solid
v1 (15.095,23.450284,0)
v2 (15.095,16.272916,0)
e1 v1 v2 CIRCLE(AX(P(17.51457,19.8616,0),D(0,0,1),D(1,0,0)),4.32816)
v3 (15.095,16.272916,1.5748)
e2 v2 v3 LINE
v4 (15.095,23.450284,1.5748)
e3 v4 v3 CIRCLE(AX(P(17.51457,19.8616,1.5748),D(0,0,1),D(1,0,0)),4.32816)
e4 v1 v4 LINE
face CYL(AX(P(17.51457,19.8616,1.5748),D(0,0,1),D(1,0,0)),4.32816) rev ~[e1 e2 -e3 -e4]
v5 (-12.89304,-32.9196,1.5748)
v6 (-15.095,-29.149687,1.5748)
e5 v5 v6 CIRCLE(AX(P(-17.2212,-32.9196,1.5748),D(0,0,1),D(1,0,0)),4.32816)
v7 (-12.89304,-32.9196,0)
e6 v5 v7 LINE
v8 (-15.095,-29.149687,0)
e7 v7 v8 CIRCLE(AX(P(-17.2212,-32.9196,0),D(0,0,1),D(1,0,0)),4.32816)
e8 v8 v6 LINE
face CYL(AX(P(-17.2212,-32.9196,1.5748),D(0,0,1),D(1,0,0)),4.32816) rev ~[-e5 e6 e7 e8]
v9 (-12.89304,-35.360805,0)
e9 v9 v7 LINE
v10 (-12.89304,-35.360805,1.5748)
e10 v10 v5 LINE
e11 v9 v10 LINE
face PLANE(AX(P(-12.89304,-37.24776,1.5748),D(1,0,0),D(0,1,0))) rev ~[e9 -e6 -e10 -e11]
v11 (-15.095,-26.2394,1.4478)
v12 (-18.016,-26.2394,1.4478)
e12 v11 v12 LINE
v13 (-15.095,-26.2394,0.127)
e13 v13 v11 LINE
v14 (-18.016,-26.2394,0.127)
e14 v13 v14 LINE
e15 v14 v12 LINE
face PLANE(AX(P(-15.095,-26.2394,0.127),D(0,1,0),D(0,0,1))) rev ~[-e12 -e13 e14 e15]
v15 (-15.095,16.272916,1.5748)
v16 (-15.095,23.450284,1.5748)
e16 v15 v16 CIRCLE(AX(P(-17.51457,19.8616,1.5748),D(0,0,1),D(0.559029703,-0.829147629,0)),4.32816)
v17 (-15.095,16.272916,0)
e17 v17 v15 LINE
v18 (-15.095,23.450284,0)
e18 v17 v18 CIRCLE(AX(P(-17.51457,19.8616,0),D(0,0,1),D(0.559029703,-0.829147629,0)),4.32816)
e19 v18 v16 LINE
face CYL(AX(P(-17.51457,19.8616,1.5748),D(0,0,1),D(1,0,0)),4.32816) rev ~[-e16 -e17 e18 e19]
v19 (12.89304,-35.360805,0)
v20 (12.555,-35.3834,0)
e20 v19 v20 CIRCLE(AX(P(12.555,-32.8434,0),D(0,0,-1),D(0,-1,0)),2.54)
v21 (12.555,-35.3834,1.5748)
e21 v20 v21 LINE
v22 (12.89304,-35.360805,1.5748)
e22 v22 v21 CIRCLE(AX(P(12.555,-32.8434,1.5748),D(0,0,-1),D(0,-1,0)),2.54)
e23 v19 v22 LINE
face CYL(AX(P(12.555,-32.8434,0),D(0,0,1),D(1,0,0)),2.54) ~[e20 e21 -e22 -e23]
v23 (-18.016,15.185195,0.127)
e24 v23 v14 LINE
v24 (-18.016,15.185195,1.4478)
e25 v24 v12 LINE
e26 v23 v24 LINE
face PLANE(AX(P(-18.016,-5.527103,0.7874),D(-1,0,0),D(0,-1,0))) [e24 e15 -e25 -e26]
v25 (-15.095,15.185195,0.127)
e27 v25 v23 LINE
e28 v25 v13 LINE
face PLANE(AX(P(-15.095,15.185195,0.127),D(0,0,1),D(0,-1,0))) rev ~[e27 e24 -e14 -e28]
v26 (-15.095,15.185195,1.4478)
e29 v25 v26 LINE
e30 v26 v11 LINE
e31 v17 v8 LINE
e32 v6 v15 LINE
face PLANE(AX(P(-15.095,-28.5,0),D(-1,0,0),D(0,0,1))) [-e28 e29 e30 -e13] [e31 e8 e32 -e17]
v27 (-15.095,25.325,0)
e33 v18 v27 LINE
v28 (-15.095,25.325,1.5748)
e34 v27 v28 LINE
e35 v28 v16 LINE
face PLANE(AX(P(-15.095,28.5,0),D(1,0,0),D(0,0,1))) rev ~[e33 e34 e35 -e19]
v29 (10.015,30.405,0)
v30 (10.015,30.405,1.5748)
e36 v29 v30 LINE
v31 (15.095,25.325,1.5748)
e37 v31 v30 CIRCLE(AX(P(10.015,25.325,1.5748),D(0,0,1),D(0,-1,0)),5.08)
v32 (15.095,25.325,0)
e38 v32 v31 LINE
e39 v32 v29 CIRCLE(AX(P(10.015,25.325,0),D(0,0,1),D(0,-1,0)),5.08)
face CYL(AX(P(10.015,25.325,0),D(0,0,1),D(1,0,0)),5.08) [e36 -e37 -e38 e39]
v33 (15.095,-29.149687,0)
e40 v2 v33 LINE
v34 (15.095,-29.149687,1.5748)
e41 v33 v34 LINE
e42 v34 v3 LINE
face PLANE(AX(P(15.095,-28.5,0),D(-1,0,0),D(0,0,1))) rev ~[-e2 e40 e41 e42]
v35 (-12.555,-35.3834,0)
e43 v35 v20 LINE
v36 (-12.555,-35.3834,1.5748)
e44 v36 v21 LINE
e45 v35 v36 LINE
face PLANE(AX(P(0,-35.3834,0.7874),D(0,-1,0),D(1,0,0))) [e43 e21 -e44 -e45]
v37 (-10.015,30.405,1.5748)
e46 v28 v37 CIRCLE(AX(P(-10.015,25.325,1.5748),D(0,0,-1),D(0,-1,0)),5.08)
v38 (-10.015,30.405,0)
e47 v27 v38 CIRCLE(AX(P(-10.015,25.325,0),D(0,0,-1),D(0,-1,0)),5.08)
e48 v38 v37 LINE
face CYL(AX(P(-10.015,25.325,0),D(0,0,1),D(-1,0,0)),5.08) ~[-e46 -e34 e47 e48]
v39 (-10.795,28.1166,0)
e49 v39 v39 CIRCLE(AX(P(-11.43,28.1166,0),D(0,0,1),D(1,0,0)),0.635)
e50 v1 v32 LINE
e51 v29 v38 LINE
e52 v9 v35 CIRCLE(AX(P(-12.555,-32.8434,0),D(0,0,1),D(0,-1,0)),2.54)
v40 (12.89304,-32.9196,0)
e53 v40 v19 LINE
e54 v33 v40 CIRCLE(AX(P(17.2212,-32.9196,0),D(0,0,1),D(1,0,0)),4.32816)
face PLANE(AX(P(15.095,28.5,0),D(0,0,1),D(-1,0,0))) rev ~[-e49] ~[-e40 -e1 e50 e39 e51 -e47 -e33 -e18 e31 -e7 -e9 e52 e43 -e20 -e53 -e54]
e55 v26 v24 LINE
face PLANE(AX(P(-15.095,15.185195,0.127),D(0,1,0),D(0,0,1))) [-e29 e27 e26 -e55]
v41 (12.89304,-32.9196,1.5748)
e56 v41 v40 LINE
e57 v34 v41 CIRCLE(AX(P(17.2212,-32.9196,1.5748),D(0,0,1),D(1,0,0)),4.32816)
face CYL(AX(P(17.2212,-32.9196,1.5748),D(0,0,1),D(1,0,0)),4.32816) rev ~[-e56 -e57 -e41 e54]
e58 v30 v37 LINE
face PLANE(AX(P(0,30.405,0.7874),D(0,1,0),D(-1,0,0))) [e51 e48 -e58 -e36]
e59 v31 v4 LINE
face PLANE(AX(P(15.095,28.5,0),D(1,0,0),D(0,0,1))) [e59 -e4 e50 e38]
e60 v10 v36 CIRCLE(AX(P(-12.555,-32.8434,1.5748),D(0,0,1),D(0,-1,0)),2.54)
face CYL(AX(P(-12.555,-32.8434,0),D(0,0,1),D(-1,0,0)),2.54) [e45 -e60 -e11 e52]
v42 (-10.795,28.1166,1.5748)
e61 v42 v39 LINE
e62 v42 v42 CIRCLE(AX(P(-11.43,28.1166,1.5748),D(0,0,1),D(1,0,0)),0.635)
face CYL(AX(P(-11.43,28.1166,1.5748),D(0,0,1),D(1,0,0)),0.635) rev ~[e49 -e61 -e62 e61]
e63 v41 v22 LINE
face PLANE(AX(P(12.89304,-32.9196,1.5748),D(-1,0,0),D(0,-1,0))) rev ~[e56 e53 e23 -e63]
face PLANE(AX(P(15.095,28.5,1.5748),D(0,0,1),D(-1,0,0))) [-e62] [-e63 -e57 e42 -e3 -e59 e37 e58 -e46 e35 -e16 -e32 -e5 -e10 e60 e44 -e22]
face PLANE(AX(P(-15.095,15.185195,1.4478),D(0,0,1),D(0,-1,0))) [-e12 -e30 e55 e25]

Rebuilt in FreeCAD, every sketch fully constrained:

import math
import FreeCAD as App
import Part
import Sketcher
from FreeCAD import Vector
Q = App.Units.Quantity


def edges_at(feature, points):
    """Names of the edges that pass closest to the given points."""
    edges = feature.Shape.Edges
    near = lambda p: min(range(len(edges)), key=lambda i: edges[i].distToShape(Part.Vertex(*p))[0])
    return sorted({f"Edge{near(p) + 1}" for p in points})


def add_polygon(sketch, points):
    """Adds a closed chain of lines whose ends are joined by coincident constraints."""
    first, n = sketch.GeometryCount, len(points)
    for a, b in zip(points, points[1:] + points[:1]):
        sketch.addGeometry(Part.LineSegment(App.Vector(*a, 0), App.Vector(*b, 0)), False)
    for i in range(n):
        sketch.addConstraint(Sketcher.Constraint("Coincident", first + i, 2, first + (i + 1) % n, 1))

doc = App.newDocument("Part")
body = doc.addObject("PartDesign::Body", "Body")

sketch1 = doc.addObject("Sketcher::SketchObject", "Sketch")
body.addObject(sketch1)
sketch1.AttachmentSupport = (doc.XY_Plane, [""])
sketch1.MapMode = "FlatFace"
add_polygon(sketch1, [(-15, 28), (-15, -28), (15, -28), (15, 28)])
sketch1.addConstraint(Sketcher.Constraint("Vertical", 0))
sketch1.addConstraint(Sketcher.Constraint("Horizontal", 1))
sketch1.addConstraint(Sketcher.Constraint("Vertical", 2))
sketch1.addConstraint(Sketcher.Constraint("Horizontal", 3))
sketch1.addConstraint(Sketcher.Constraint("Symmetric", 0, 2, 2, 2, -1, 1))
sketch1.addConstraint(Sketcher.Constraint("DistanceX", 1, 1, 1, 2, Q("30.19 mm")))
sketch1.addConstraint(Sketcher.Constraint("DistanceY", 0, 2, 0, 1, Q("57 mm")))
pad1 = doc.addObject("PartDesign::Pad", "Pad")
body.addObject(pad1)
pad1.Profile = sketch1
pad1.Length = Q("0.062 in")

sketch2 = doc.addObject("Sketcher::SketchObject", "Sketch001")
body.addObject(sketch2)
sketch2.AttachmentSupport = (doc.XZ_Plane, [""])
sketch2.MapMode = "FlatFace"
sketch2.AttachmentOffset = App.Placement(Vector(0, 0, 28.5), App.Rotation())
add_polygon(sketch2, [(-15.1, 1.6), (-15.1, 0), (15.1, 0), (15.1, 1.6)])
sketch2.addConstraint(Sketcher.Constraint("Vertical", 0))
sketch2.addConstraint(Sketcher.Constraint("Horizontal", 1))
sketch2.addConstraint(Sketcher.Constraint("Vertical", 2))
sketch2.addConstraint(Sketcher.Constraint("Horizontal", 3))
sketch2.addConstraint(Sketcher.Constraint("Symmetric", 0, 2, 1, 2, -1, 1))
sketch2.addConstraint(Sketcher.Constraint("DistanceY", 0, 2, 0, 1, Q("0.062 in")))
sketch2.addConstraint(Sketcher.Constraint("DistanceX", 1, 1, 1, 2, Q("30.19 mm")))
pad2 = doc.addObject("PartDesign::Pad", "Pad001")
body.addObject(pad2)
pad2.Profile = sketch2
pad2.Length = Q("0.271 in")
doc.recompute()

fillet = doc.addObject("PartDesign::Fillet", "Fillet")
body.addObject(fillet)
fillet.Base = (pad2, edges_at(pad2, [(15.095, -35.383, 0.787), (-15.095, -35.383, 0.787)]))
fillet.Radius = Q("0.1 in")

sketch3 = doc.addObject("Sketcher::SketchObject", "Sketch002")
body.addObject(sketch3)
sketch3.AttachmentSupport = (doc.XY_Plane, [""])
sketch3.MapMode = "FlatFace"
sketch3.AttachmentOffset = App.Placement(Vector(0, 0, 0.062 * 25.4), App.Rotation())
sketch3.addGeometry(Part.Circle(Vector(-17.5, 19.9, 0), Vector(0, 0, 1), 4.3), False)
sketch3.addGeometry(Part.Circle(Vector(17.5, 19.9, 0), Vector(0, 0, 1), 4.3), False)
sketch3.addGeometry(Part.ArcOfCircle(Part.Circle(Vector(-17.2, -32.9, 0), Vector(0, 0, 1), 4.3), math.radians(0), math.radians(270)), False)
sketch3.addGeometry(Part.LineSegment(Vector(-17.2, -37.2, 0), Vector(-12.9, -37.2, 0)), False)
sketch3.addGeometry(Part.LineSegment(Vector(-12.9, -37.2, 0), Vector(-12.9, -32.9, 0)), False)
sketch3.addGeometry(Part.ArcOfCircle(Part.Circle(Vector(17.2, -32.9, 0), Vector(0, 0, 1), 4.3), math.radians(-90), math.radians(0)), False)
sketch3.addGeometry(Part.ArcOfCircle(Part.Circle(Vector(17.2, -32.9, 0), Vector(0, 0, 1), 4.3), math.radians(0), math.radians(180)), False)
sketch3.addGeometry(Part.LineSegment(Vector(12.9, -32.9, 0), Vector(12.9, -37.2, 0)), False)
sketch3.addGeometry(Part.LineSegment(Vector(12.9, -37.2, 0), Vector(17.2, -37.2, 0)), False)
sketch3.addConstraint(Sketcher.Constraint("Tangent", 2, 2, 3, 1))
sketch3.addConstraint(Sketcher.Constraint("Coincident", 3, 2, 4, 1))
sketch3.addConstraint(Sketcher.Constraint("Tangent", 4, 2, 2, 1))
sketch3.addConstraint(Sketcher.Constraint("Tangent", 5, 2, 6, 1))
sketch3.addConstraint(Sketcher.Constraint("Tangent", 6, 2, 7, 1))
sketch3.addConstraint(Sketcher.Constraint("Coincident", 7, 2, 8, 1))
sketch3.addConstraint(Sketcher.Constraint("Tangent", 8, 2, 5, 1))
sketch3.addConstraint(Sketcher.Constraint("Horizontal", 3))
sketch3.addConstraint(Sketcher.Constraint("Vertical", 4))
sketch3.addConstraint(Sketcher.Constraint("Vertical", 7))
sketch3.addConstraint(Sketcher.Constraint("Horizontal", 8))
sketch3.addConstraint(Sketcher.Constraint("Equal", 0, 1))
sketch3.addConstraint(Sketcher.Constraint("Equal", 1, 2))
sketch3.addConstraint(Sketcher.Constraint("Equal", 2, 5))
sketch3.addConstraint(Sketcher.Constraint("Equal", 5, 6))
sketch3.addConstraint(Sketcher.Constraint("Symmetric", 0, 3, 1, 3, -2))
sketch3.addConstraint(Sketcher.Constraint("Symmetric", 2, 3, 5, 3, -2))
sketch3.addConstraint(Sketcher.Constraint("Horizontal", 4, 2, 5, 2))
sketch3.addConstraint(Sketcher.Constraint("Diameter", 0, Q("0.3408 in")))
sketch3.addConstraint(Sketcher.Constraint("DistanceX", 2, 3, -1, 1, Q("0.678 in")))
sketch3.addConstraint(Sketcher.Constraint("DistanceY", 2, 3, 0, 3, Q("2.078 in")))
sketch3.addConstraint(Sketcher.Constraint("DistanceX", 0, 3, 1, 3, Q("1.3791 in")))
sketch3.addConstraint(Sketcher.Constraint("DistanceY", -1, 1, 0, 3, Q("19.8616 mm")))
pocket1 = doc.addObject("PartDesign::Pocket", "Pocket")
body.addObject(pocket1)
pocket1.Profile = sketch3
pocket1.Type = "ThroughAll"

sketch4 = doc.addObject("Sketcher::SketchObject", "Sketch003")
body.addObject(sketch4)
sketch4.AttachmentSupport = (doc.XZ_Plane, [""])
sketch4.MapMode = "FlatFace"
sketch4.AttachmentOffset = App.Placement(Vector(0, 0, -28.5), App.Rotation())
add_polygon(sketch4, [(15.1, 1.6), (15.1, 0), (-15.1, 0), (-15.1, 1.6)])
sketch4.addConstraint(Sketcher.Constraint("Vertical", 0))
sketch4.addConstraint(Sketcher.Constraint("Horizontal", 1))
sketch4.addConstraint(Sketcher.Constraint("Vertical", 2))
sketch4.addConstraint(Sketcher.Constraint("Horizontal", 3))
sketch4.addConstraint(Sketcher.Constraint("Symmetric", 0, 2, 1, 2, -1, 1))
sketch4.addConstraint(Sketcher.Constraint("DistanceY", 0, 2, 0, 1, Q("0.062 in")))
sketch4.addConstraint(Sketcher.Constraint("DistanceX", 1, 2, 1, 1, Q("30.19 mm")))
pad3 = doc.addObject("PartDesign::Pad", "Pad002")
body.addObject(pad3)
pad3.Profile = sketch4
pad3.Length = Q("0.075 in")
pad3.Reversed = True
doc.recompute()

fillet2 = doc.addObject("PartDesign::Fillet", "Fillet001")
body.addObject(fillet2)
fillet2.Base = (pad3, edges_at(pad3, [(-15.095, 30.405, 0.787), (15.095, 30.405, 0.787)]))
fillet2.Radius = Q("0.2 in")

sketch5 = doc.addObject("Sketcher::SketchObject", "Sketch004")
body.addObject(sketch5)
sketch5.AttachmentSupport = (doc.XY_Plane, [""])
sketch5.MapMode = "FlatFace"
sketch5.AttachmentOffset = App.Placement(Vector(0, 0, 0.062 * 25.4), App.Rotation())
sketch5.addGeometry(Part.Circle(Vector(-11.4, 28.1, 0), Vector(0, 0, 1), 0.6), False)
sketch5.addConstraint(Sketcher.Constraint("Diameter", 0, Q("0.05 in")))
sketch5.addConstraint(Sketcher.Constraint("DistanceX", 0, 3, -1, 1, Q("0.45 in")))
sketch5.addConstraint(Sketcher.Constraint("DistanceY", -1, 1, 0, 3, Q("28.1166 mm")))
pocket2 = doc.addObject("PartDesign::Pocket", "Pocket001")
body.addObject(pocket2)
pocket2.Profile = sketch5
pocket2.Length = Q("1 in")

sketch6 = doc.addObject("Sketcher::SketchObject", "Sketch005")
body.addObject(sketch6)
sketch6.AttachmentSupport = (doc.YZ_Plane, [""])
sketch6.MapMode = "FlatFace"
sketch6.AttachmentOffset = App.Placement(Vector(0, 0, -15.095), App.Rotation())
add_polygon(sketch6, [(15.2, 1.4), (15.2, 0.1), (-26.2, 0.1), (-26.2, 1.4)])
sketch6.addConstraint(Sketcher.Constraint("Vertical", 0))
sketch6.addConstraint(Sketcher.Constraint("Horizontal", 1))
sketch6.addConstraint(Sketcher.Constraint("Vertical", 2))
sketch6.addConstraint(Sketcher.Constraint("Horizontal", 3))
sketch6.addConstraint(Sketcher.Constraint("DistanceY", 0, 2, 0, 1, Q("0.052 in")))
sketch6.addConstraint(Sketcher.Constraint("DistanceY", -1, 1, 0, 2, Q("0.005 in")))
sketch6.addConstraint(Sketcher.Constraint("DistanceX", 1, 2, -1, 1, Q("26.2394 mm")))
sketch6.addConstraint(Sketcher.Constraint("DistanceX", 1, 2, 1, 1, Q("41.424595 mm")))
pad4 = doc.addObject("PartDesign::Pad", "Pad003")
body.addObject(pad4)
pad4.Profile = sketch6
pad4.Length = Q("0.115 in")
pad4.Reversed = True

doc.recompute()
